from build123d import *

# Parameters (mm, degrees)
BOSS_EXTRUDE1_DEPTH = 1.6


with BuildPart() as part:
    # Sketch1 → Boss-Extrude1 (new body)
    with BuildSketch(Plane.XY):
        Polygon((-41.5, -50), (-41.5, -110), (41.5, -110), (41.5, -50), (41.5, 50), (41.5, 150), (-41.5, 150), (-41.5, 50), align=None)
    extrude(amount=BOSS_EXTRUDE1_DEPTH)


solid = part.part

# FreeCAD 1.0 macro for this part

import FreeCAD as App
import Part
import Sketcher
from FreeCAD import Vector

doc = App.newDocument("Part")
body = doc.addObject("PartDesign::Body", "Body")

sketch1 = body.newObject("Sketcher::SketchObject", "Sketch")
sketch1.AttachmentSupport = (doc.getObject("XY_Plane"), [""])
sketch1.MapMode = "FlatFace"
sketch1.addGeometry([
    Part.LineSegment(Vector(-42, -110, 0), Vector(42, -110, 0)),
    Part.LineSegment(Vector(42, -110, 0), Vector(42, 150, 0)),
    Part.LineSegment(Vector(42, 150, 0), Vector(-42, 150, 0)),
    Part.LineSegment(Vector(-42, 150, 0), Vector(-42, -110, 0)),
], False)
sketch1.addConstraint([
    Sketcher.Constraint("Coincident", 0, 2, 1, 1),
    Sketcher.Constraint("Coincident", 1, 2, 2, 1),
    Sketcher.Constraint("Coincident", 2, 2, 3, 1),
    Sketcher.Constraint("Coincident", 3, 2, 0, 1),
    Sketcher.Constraint("Horizontal", 0),
    Sketcher.Constraint("Vertical", 1),
    Sketcher.Constraint("Horizontal", 2),
    Sketcher.Constraint("Vertical", 3),
    Sketcher.Constraint("DistanceX", 0, 1, 0, 2, 83.0),
    Sketcher.Constraint("DistanceY", 1, 1, 1, 2, 260.0),
    Sketcher.Constraint("DistanceY", 0, 2, -1, 1, 110.0),
    Sketcher.Constraint("DistanceX", -1, 1, 0, 2, 41.5),
])
pad1 = body.newObject("PartDesign::Pad", "Pad")
pad1.Profile = sketch1
pad1.Length = 1.6

doc.recompute()
